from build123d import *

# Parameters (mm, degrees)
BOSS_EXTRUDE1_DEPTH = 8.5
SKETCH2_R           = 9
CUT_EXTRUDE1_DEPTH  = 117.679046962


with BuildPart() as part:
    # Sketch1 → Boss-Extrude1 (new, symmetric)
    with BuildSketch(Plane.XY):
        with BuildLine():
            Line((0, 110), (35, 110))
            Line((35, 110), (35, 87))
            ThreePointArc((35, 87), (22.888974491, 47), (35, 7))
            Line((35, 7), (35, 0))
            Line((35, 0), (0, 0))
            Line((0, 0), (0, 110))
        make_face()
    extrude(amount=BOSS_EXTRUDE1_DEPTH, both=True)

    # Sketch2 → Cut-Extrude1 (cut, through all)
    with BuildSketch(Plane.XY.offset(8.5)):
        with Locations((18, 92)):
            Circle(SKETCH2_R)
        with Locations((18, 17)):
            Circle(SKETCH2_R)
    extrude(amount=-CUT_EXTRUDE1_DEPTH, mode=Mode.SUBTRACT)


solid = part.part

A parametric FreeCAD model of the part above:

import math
import FreeCAD as App
import Part
import Sketcher
Q = App.Units.Quantity

doc = App.newDocument("Part")
params = doc.addObject("Spreadsheet::Sheet", "Params")
for row, (alias, value) in enumerate([
    ("sketch1_width", "35 mm"),
    ("sketch1_height", "110 mm"),
    ("sketch1_height2", "7 mm"),
    ("sketch1_height3", "23 mm"),
    ("pad1_length", "17 mm"),
    ("sketch2_diameter", "18 mm"),
], start=1):
    params.set(f"A{row}", alias)
    params.set(f"B{row}", "=" + value)
    params.setAlias(f"B{row}", alias)

body = doc.addObject("PartDesign::Body", "Body")

sketch1 = doc.addObject("Sketcher::SketchObject", "Sketch")
body.addObject(sketch1)
sketch1.AttachmentSupport = (doc.XY_Plane, [""])
sketch1.MapMode = "FlatFace"
sketch1.addGeometry([
    Part.LineSegment(App.Vector(35, 110, 0), App.Vector(0, 110, 0)),
    Part.LineSegment(App.Vector(0, 110, 0), App.Vector(0, 0, 0)),
    Part.LineSegment(App.Vector(0, 0, 0), App.Vector(35, 0, 0)),
    Part.LineSegment(App.Vector(35, 0, 0), App.Vector(35, 7, 0)),
    Part.ArcOfCircle(Part.Circle(App.Vector(95, 47, 0), App.Vector(0, 0, 1), 72), math.radians(146), math.radians(214)),
    Part.LineSegment(App.Vector(35, 87, 0), App.Vector(35, 110, 0)),
], False)
sketch1.addConstraint([
    Sketcher.Constraint("Coincident", 0, 2, 1, 1),
    Sketcher.Constraint("Coincident", 1, 2, 2, 1),
    Sketcher.Constraint("Coincident", 2, 2, 3, 1),
    Sketcher.Constraint("Coincident", 3, 2, 4, 2),
    Sketcher.Constraint("Coincident", 4, 1, 5, 1),
    Sketcher.Constraint("Coincident", 5, 2, 0, 1),
    Sketcher.Constraint("Horizontal", 0),
    Sketcher.Constraint("Vertical", 1),
    Sketcher.Constraint("Horizontal", 2),
    Sketcher.Constraint("Vertical", 3),
    Sketcher.Constraint("Vertical", 5),
    Sketcher.Constraint("Coincident", 1, 2, -1, 1),
    Sketcher.Constraint("Vertical", 3, 2, 4, 1),
    Sketcher.Constraint("DistanceX", 0, 2, 0, 1, Q("35 mm")),
    Sketcher.Constraint("DistanceY", 1, 2, 1, 1, Q("110 mm")),
    Sketcher.Constraint("DistanceY", 3, 1, 3, 2, Q("7 mm")),
    Sketcher.Constraint("DistanceY", 5, 1, 5, 2, Q("23 mm")),
    Sketcher.Constraint("DistanceX", -1, 1, 4, 3, Q("95 mm")),
])
sketch1.setExpression("Constraints[13]", "Params.sketch1_width")
sketch1.setExpression("Constraints[14]", "Params.sketch1_height")
sketch1.setExpression("Constraints[15]", "Params.sketch1_height2")
sketch1.setExpression("Constraints[16]", "Params.sketch1_height3")
pad1 = doc.addObject("PartDesign::Pad", "Pad")
body.addObject(pad1)
pad1.Profile = sketch1
pad1.setExpression("Length", "Params.pad1_length")
pad1.Midplane = True

sketch2 = doc.addObject("Sketcher::SketchObject", "Sketch001")
body.addObject(sketch2)
sketch2.AttachmentSupport = (doc.XY_Plane, [""])
sketch2.MapMode = "FlatFace"
sketch2.AttachmentOffset = App.Placement(App.Vector(0, 0, 8.5), App.Rotation())
sketch2.addGeometry([
    Part.Circle(App.Vector(18, 92, 0), App.Vector(0, 0, 1), 9),
    Part.Circle(App.Vector(18, 17, 0), App.Vector(0, 0, 1), 9),
], False)
sketch2.addConstraint([
    Sketcher.Constraint("Equal", 0, 1),
    Sketcher.Constraint("Vertical", 0, 3, 1, 3),
    Sketcher.Constraint("Diameter", 0, Q("18 mm")),
    Sketcher.Constraint("DistanceX", -1, 1, 0, 3, Q("18 mm")),
    Sketcher.Constraint("DistanceY", -1, 1, 0, 3, Q("92 mm")),
    Sketcher.Constraint("DistanceY", -1, 1, 1, 3, Q("17 mm")),
])
sketch2.setExpression("Constraints[2]", "Params.sketch2_diameter")
pocket1 = doc.addObject("PartDesign::Pocket", "Pocket")
body.addObject(pocket1)
pocket1.Profile = sketch2
pocket1.Type = "ThroughAll"

doc.recompute()
